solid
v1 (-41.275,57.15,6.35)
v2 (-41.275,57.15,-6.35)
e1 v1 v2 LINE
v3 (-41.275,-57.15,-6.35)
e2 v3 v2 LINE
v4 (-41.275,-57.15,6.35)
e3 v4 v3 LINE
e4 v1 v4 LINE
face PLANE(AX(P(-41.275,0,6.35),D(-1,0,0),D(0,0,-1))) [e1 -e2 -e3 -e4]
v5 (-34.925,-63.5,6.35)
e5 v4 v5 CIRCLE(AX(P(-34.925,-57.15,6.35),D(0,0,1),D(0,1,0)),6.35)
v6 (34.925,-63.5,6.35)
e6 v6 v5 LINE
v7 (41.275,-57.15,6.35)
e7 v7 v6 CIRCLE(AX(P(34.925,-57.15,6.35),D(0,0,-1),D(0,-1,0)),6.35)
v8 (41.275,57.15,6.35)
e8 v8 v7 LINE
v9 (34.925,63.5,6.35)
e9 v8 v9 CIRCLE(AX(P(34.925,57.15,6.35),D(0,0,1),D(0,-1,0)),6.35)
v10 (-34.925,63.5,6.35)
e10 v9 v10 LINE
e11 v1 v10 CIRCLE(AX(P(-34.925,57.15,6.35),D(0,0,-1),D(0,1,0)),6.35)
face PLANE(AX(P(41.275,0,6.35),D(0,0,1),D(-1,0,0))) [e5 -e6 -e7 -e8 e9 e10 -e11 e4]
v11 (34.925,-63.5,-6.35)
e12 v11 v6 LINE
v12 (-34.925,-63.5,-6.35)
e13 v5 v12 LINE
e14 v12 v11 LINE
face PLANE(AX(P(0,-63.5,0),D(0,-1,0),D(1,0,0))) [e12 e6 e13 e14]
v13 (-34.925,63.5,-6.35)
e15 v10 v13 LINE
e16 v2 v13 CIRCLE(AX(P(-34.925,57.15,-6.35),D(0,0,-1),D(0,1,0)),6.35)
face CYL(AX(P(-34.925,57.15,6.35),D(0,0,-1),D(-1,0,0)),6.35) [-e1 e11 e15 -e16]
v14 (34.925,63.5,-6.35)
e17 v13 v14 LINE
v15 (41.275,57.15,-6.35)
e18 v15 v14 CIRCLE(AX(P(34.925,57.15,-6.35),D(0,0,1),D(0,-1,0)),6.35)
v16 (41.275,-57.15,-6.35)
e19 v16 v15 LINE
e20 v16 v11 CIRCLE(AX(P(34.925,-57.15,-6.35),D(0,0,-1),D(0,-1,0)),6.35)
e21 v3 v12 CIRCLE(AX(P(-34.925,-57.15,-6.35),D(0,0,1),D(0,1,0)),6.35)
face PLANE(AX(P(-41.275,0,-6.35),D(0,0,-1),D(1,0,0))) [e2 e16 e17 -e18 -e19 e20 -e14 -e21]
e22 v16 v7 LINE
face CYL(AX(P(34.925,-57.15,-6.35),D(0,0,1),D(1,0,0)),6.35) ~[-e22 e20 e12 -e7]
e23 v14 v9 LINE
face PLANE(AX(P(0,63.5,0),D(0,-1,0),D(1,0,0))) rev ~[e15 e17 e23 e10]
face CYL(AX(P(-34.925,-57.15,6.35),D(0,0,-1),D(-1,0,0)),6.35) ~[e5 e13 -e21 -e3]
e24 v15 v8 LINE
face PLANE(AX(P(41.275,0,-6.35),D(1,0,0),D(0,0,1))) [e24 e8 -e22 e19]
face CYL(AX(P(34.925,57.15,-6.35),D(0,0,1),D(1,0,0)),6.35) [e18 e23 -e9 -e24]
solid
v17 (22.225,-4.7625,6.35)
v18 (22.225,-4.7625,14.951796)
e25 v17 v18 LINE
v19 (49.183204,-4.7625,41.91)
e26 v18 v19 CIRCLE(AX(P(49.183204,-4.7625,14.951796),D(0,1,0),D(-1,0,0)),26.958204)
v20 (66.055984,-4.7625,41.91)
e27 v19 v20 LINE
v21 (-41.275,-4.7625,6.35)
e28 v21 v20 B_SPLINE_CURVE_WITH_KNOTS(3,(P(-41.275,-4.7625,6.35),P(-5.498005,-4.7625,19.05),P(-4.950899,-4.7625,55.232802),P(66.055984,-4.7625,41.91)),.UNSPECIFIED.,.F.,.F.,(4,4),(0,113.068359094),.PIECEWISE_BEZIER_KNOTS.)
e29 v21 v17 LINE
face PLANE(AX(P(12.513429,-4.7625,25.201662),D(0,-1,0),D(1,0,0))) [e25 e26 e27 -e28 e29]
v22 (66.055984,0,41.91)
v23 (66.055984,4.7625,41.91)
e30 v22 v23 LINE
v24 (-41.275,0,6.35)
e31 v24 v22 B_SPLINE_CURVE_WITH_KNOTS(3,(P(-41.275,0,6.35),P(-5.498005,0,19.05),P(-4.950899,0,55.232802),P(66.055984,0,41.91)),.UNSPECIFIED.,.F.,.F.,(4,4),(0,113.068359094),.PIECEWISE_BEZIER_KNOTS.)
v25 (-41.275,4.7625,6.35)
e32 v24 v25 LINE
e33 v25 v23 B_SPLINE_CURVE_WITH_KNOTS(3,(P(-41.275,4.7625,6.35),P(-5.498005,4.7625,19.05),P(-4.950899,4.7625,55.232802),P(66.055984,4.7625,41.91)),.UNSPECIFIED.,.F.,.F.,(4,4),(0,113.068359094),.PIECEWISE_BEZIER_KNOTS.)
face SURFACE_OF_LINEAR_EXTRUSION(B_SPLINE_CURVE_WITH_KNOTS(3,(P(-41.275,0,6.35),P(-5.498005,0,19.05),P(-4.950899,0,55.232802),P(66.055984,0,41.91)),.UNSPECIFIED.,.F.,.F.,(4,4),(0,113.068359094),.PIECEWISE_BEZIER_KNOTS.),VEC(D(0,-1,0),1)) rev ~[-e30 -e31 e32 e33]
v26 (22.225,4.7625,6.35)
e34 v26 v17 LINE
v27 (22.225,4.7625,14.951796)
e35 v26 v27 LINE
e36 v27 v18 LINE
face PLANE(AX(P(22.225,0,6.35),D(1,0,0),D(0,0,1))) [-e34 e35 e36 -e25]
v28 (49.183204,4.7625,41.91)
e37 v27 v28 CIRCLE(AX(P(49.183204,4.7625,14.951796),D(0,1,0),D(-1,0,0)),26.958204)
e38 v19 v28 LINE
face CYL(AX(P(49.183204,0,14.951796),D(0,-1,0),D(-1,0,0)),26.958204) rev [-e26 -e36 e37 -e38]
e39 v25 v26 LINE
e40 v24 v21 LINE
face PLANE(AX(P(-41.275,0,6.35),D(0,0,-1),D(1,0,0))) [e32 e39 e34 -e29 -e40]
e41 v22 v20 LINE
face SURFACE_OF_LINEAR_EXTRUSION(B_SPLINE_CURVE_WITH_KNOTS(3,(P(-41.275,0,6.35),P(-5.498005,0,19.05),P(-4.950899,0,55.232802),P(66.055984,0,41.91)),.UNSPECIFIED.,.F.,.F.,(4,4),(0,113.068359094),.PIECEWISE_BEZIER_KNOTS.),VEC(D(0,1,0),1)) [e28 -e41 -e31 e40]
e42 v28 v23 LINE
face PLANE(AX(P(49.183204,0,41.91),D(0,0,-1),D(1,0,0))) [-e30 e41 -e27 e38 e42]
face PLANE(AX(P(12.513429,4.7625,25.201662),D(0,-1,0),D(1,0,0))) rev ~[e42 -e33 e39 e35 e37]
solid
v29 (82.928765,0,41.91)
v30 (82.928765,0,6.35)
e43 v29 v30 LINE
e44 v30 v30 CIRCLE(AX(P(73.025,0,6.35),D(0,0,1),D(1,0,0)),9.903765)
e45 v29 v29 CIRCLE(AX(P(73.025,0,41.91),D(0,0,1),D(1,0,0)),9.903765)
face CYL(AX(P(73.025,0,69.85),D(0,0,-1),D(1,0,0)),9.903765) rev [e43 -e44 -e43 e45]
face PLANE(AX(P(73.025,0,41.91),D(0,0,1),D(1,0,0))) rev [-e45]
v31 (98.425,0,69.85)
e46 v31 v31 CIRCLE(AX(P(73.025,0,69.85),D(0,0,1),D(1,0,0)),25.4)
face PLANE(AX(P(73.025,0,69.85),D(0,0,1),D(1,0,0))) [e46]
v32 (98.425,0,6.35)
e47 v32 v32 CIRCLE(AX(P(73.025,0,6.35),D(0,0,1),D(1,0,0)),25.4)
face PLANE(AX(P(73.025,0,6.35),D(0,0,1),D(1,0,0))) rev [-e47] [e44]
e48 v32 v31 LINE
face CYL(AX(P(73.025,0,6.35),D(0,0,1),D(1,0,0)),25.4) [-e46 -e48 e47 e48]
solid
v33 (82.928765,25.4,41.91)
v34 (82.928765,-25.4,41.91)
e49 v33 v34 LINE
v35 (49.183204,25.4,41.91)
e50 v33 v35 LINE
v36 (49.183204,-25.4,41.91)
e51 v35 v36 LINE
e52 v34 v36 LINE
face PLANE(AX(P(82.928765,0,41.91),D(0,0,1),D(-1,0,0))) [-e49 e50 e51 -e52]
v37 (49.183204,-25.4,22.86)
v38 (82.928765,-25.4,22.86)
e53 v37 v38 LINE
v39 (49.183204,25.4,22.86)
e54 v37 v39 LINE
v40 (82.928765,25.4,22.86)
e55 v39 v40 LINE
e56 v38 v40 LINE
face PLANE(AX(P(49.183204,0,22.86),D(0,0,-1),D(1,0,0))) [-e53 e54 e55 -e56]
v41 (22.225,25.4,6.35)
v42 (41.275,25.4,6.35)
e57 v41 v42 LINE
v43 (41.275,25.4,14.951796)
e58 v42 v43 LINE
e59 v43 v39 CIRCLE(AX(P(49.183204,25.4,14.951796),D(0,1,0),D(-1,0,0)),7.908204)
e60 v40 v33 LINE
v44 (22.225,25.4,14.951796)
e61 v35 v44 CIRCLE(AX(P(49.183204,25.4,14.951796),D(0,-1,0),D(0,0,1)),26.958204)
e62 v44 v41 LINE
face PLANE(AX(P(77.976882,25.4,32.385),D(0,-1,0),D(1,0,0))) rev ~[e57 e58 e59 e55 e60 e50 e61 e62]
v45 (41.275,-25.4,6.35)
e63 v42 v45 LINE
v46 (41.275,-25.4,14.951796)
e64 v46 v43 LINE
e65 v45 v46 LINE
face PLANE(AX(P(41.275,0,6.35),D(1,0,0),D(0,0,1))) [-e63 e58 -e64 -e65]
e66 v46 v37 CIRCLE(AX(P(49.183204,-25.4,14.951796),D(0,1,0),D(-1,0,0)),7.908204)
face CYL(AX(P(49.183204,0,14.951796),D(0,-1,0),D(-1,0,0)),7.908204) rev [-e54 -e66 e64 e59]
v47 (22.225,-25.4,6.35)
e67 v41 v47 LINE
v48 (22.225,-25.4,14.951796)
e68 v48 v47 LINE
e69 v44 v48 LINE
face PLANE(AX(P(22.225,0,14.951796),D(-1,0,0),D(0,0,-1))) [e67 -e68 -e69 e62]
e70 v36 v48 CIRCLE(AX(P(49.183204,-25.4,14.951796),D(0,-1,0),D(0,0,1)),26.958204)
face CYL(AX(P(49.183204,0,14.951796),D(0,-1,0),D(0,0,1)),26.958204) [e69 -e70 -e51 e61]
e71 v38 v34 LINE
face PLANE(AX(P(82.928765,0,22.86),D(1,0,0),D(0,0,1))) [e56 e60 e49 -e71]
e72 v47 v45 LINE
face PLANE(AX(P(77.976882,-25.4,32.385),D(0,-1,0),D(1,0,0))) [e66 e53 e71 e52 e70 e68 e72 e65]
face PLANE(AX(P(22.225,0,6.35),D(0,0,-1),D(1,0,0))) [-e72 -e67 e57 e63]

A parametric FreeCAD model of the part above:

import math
import FreeCAD as App
import Part
import Sketcher
Q = App.Units.Quantity


def edges_at(feature, points):
    """Names of the edges that pass closest to the given points."""
    edges = feature.Shape.Edges
    near = lambda p: min(range(len(edges)), key=lambda i: edges[i].distToShape(Part.Vertex(*p))[0])
    return sorted({f"Edge{near(p) + 1}" for p in points})


def add_polygon(sketch, points):
    """Adds a closed chain of lines whose ends are joined by coincident constraints."""
    first, n = sketch.GeometryCount, len(points)
    for a, b in zip(points, points[1:] + points[:1]):
        sketch.addGeometry(Part.LineSegment(App.Vector(*a, 0), App.Vector(*b, 0)), False)
    for i in range(n):
        sketch.addConstraint(Sketcher.Constraint("Coincident", first + i, 2, first + (i + 1) % n, 1))

doc = App.newDocument("Part")
body = doc.addObject("PartDesign::Body", "Body")

sketch1 = body.newObject("Sketcher::SketchObject", "Sketch")
sketch1.AttachmentSupport = (doc.getObject("XZ_Plane"), [""])
sketch1.MapMode = "FlatFace"
add_polygon(sketch1, [(41.275, -6.35), (41.275, 6.35), (-41.275, 6.35), (-41.275, -6.35)])
sketch1.addConstraint([
    Sketcher.Constraint("Vertical", 0),
    Sketcher.Constraint("Horizontal", 1),
    Sketcher.Constraint("Vertical", 2),
    Sketcher.Constraint("Horizontal", 3),
    Sketcher.Constraint("Symmetric", 0, 2, 2, 2, -1, 1),
    Sketcher.Constraint("DistanceY", 0, 1, 0, 2, Q("0.5 in")),
    Sketcher.Constraint("DistanceX", 1, 2, 1, 1, Q("3.25 in")),
])
pad1 = body.newObject("PartDesign::Pad", "Pad")
pad1.Profile = sketch1
pad1.Length = Q("5 in")
pad1.Midplane = True
doc.recompute()

fillet = body.newObject("PartDesign::Fillet", "Fillet")
fillet.Base = (pad1, edges_at(pad1, [
    (41.275, -63.5, 0),
    (-41.275, 63.5, 0),
    (-41.275, -63.5, 0),
    (41.275, 63.5, 0),
]))
fillet.Radius = Q("0.25 in")
body2 = doc.addObject("PartDesign::Body", "Body001")

sketch2 = body2.newObject("Sketcher::SketchObject", "Sketch001")
sketch2.AttachmentSupport = (doc.getObject("XZ_Plane001"), [""])
sketch2.MapMode = "FlatFace"
sketch2.addGeometry([
    Part.LineSegment(App.Vector(-41.275, 6.35, 0), App.Vector(22.225, 6.35, 0)),
    Part.LineSegment(App.Vector(22.225, 6.35, 0), App.Vector(22.225, 14.951796, 0)),
    Part.ArcOfCircle(Part.Circle(App.Vector(49.183204, 14.951796, 0), App.Vector(0, 0, 1), 26.958204), math.radians(90), math.radians(180)),
    Part.LineSegment(App.Vector(49.183204, 41.91, 0), App.Vector(66.055984, 41.91, 0)),
    Part.BSplineCurve([App.Vector(-41.275, 6.35, 0), App.Vector(-5.498005, 19.05, 0), App.Vector(-4.950899, 55.232802, 0), App.Vector(66.055984, 41.91, 0)], [4, 4], [0, 113.068359094], False, 3, [1, 1, 1, 1], False),
], False)
sketch2.addConstraint([
    Sketcher.Constraint("Block", 4),
    Sketcher.Constraint("Coincident", 0, 2, 1, 1),
    Sketcher.Constraint("Tangent", 1, 2, 2, 2),
    Sketcher.Constraint("Tangent", 2, 1, 3, 1),
    Sketcher.Constraint("Coincident", 3, 2, 4, 2),
    Sketcher.Constraint("Coincident", 4, 1, 0, 1),
    Sketcher.Constraint("Horizontal", 0),
    Sketcher.Constraint("Vertical", 1),
    Sketcher.Constraint("Horizontal", 3),
    Sketcher.Constraint("DistanceX", 0, 1, 0, 2, Q("2.5 in")),
    Sketcher.Constraint("Radius", 2, Q("26.958204 mm")),
])
pad2 = body2.newObject("PartDesign::Pad", "Pad001")
pad2.Profile = sketch2
pad2.Length = Q("0.375 in")
pad2.Midplane = True
body3 = doc.addObject("PartDesign::Body", "Body002")

sketch3 = body3.newObject("Sketcher::SketchObject", "Sketch002")
sketch3.AttachmentSupport = (doc.getObject("XZ_Plane002"), [""])
sketch3.MapMode = "FlatFace"
sketch3.addGeometry([
    Part.LineSegment(App.Vector(82.928765, 22.86, 0), App.Vector(82.928765, 41.91, 0)),
    Part.LineSegment(App.Vector(82.928765, 41.91, 0), App.Vector(49.183204, 41.91, 0)),
    Part.ArcOfCircle(Part.Circle(App.Vector(49.183204, 14.951796, 0), App.Vector(0, 0, 1), 26.958204), math.radians(90), math.radians(180)),
    Part.LineSegment(App.Vector(22.225, 14.951796, 0), App.Vector(22.225, 6.35, 0)),
    Part.LineSegment(App.Vector(22.225, 6.35, 0), App.Vector(41.275, 6.35, 0)),
    Part.LineSegment(App.Vector(41.275, 6.35, 0), App.Vector(41.275, 14.951796, 0)),
    Part.ArcOfCircle(Part.Circle(App.Vector(49.183204, 14.951796, 0), App.Vector(0, 0, 1), 7.908204), math.radians(90), math.radians(180)),
    Part.LineSegment(App.Vector(49.183204, 22.86, 0), App.Vector(82.928765, 22.86, 0)),
], False)
sketch3.addConstraint([
    Sketcher.Constraint("Coincident", 0, 2, 1, 1),
    Sketcher.Constraint("Tangent", 1, 2, 2, 1),
    Sketcher.Constraint("Tangent", 2, 2, 3, 1),
    Sketcher.Constraint("Coincident", 3, 2, 4, 1),
    Sketcher.Constraint("Coincident", 4, 2, 5, 1),
    Sketcher.Constraint("Tangent", 5, 2, 6, 2),
    Sketcher.Constraint("Tangent", 6, 1, 7, 1),
    Sketcher.Constraint("Coincident", 7, 2, 0, 1),
    Sketcher.Constraint("Vertical", 0),
    Sketcher.Constraint("Horizontal", 1),
    Sketcher.Constraint("Vertical", 3),
    Sketcher.Constraint("Horizontal", 4),
    Sketcher.Constraint("Vertical", 5),
    Sketcher.Constraint("Horizontal", 7),
    Sketcher.Constraint("Coincident", 6, 3, 2, 3),
    Sketcher.Constraint("DistanceX", 4, 1, 4, 2, Q("0.75 in")),
    Sketcher.Constraint("DistanceY", -1, 1, 6, 1, Q("0.9 in")),
    Sketcher.Constraint("DistanceY", 3, 2, 1, 2, Q("1.4 in")),
    Sketcher.Constraint("DistanceX", -1, 1, 2, 2, Q("0.875 in")),
    Sketcher.Constraint("Radius", 2, Q("26.958204 mm")),
    Sketcher.Constraint("DistanceX", 1, 2, 1, 1, Q("33.74556 mm")),
])
pad3 = body3.newObject("PartDesign::Pad", "Pad002")
pad3.Profile = sketch3
pad3.Length = Q("2 in")
pad3.Midplane = True
body4 = doc.addObject("PartDesign::Body", "Body003")

sketch4 = body4.newObject("Sketcher::SketchObject", "Sketch003")
sketch4.AttachmentSupport = (doc.getObject("XZ_Plane003"), [""])
sketch4.MapMode = "FlatFace"
add_polygon(sketch4, [(82.928765, 6.35), (98.425, 6.35), (98.425, 69.85), (73.025, 69.85), (73.025, 41.91), (82.928765, 41.91)])
sketch4.addGeometry(Part.LineSegment(App.Vector(73.025, 6.35, 0), App.Vector(73.025, 69.85, 0)), True)
sketch4.addConstraint([
    Sketcher.Constraint("Horizontal", 0),
    Sketcher.Constraint("Vertical", 1),
    Sketcher.Constraint("Horizontal", 2),
    Sketcher.Constraint("Vertical", 3),
    Sketcher.Constraint("Horizontal", 4),
    Sketcher.Constraint("Vertical", 5),
    Sketcher.Constraint("Vertical", 6),
    Sketcher.Constraint("Coincident", 6, 2, 2, 2),
    Sketcher.Constraint("Horizontal", 5, 2, 6, 1),
    Sketcher.Constraint("DistanceX", 2, 2, 2, 1, Q("1 in")),
    Sketcher.Constraint("DistanceY", 1, 1, 1, 2, Q("2.5 in")),
    Sketcher.Constraint("DistanceY", 3, 2, 3, 1, Q("1.1 in")),
    Sketcher.Constraint("DistanceY", -1, 1, 0, 2, Q("0.25 in")),
    Sketcher.Constraint("DistanceX", -1, 1, 0, 2, Q("3.875 in")),
    Sketcher.Constraint("DistanceX", 0, 1, 0, 2, Q("15.496235 mm")),
])
revolution = body4.newObject("PartDesign::Revolution", "Revolution")
revolution.Profile = sketch4
revolution.ReferenceAxis = (sketch4, ["Axis0"])
revolution.Angle = 360

doc.recompute()
